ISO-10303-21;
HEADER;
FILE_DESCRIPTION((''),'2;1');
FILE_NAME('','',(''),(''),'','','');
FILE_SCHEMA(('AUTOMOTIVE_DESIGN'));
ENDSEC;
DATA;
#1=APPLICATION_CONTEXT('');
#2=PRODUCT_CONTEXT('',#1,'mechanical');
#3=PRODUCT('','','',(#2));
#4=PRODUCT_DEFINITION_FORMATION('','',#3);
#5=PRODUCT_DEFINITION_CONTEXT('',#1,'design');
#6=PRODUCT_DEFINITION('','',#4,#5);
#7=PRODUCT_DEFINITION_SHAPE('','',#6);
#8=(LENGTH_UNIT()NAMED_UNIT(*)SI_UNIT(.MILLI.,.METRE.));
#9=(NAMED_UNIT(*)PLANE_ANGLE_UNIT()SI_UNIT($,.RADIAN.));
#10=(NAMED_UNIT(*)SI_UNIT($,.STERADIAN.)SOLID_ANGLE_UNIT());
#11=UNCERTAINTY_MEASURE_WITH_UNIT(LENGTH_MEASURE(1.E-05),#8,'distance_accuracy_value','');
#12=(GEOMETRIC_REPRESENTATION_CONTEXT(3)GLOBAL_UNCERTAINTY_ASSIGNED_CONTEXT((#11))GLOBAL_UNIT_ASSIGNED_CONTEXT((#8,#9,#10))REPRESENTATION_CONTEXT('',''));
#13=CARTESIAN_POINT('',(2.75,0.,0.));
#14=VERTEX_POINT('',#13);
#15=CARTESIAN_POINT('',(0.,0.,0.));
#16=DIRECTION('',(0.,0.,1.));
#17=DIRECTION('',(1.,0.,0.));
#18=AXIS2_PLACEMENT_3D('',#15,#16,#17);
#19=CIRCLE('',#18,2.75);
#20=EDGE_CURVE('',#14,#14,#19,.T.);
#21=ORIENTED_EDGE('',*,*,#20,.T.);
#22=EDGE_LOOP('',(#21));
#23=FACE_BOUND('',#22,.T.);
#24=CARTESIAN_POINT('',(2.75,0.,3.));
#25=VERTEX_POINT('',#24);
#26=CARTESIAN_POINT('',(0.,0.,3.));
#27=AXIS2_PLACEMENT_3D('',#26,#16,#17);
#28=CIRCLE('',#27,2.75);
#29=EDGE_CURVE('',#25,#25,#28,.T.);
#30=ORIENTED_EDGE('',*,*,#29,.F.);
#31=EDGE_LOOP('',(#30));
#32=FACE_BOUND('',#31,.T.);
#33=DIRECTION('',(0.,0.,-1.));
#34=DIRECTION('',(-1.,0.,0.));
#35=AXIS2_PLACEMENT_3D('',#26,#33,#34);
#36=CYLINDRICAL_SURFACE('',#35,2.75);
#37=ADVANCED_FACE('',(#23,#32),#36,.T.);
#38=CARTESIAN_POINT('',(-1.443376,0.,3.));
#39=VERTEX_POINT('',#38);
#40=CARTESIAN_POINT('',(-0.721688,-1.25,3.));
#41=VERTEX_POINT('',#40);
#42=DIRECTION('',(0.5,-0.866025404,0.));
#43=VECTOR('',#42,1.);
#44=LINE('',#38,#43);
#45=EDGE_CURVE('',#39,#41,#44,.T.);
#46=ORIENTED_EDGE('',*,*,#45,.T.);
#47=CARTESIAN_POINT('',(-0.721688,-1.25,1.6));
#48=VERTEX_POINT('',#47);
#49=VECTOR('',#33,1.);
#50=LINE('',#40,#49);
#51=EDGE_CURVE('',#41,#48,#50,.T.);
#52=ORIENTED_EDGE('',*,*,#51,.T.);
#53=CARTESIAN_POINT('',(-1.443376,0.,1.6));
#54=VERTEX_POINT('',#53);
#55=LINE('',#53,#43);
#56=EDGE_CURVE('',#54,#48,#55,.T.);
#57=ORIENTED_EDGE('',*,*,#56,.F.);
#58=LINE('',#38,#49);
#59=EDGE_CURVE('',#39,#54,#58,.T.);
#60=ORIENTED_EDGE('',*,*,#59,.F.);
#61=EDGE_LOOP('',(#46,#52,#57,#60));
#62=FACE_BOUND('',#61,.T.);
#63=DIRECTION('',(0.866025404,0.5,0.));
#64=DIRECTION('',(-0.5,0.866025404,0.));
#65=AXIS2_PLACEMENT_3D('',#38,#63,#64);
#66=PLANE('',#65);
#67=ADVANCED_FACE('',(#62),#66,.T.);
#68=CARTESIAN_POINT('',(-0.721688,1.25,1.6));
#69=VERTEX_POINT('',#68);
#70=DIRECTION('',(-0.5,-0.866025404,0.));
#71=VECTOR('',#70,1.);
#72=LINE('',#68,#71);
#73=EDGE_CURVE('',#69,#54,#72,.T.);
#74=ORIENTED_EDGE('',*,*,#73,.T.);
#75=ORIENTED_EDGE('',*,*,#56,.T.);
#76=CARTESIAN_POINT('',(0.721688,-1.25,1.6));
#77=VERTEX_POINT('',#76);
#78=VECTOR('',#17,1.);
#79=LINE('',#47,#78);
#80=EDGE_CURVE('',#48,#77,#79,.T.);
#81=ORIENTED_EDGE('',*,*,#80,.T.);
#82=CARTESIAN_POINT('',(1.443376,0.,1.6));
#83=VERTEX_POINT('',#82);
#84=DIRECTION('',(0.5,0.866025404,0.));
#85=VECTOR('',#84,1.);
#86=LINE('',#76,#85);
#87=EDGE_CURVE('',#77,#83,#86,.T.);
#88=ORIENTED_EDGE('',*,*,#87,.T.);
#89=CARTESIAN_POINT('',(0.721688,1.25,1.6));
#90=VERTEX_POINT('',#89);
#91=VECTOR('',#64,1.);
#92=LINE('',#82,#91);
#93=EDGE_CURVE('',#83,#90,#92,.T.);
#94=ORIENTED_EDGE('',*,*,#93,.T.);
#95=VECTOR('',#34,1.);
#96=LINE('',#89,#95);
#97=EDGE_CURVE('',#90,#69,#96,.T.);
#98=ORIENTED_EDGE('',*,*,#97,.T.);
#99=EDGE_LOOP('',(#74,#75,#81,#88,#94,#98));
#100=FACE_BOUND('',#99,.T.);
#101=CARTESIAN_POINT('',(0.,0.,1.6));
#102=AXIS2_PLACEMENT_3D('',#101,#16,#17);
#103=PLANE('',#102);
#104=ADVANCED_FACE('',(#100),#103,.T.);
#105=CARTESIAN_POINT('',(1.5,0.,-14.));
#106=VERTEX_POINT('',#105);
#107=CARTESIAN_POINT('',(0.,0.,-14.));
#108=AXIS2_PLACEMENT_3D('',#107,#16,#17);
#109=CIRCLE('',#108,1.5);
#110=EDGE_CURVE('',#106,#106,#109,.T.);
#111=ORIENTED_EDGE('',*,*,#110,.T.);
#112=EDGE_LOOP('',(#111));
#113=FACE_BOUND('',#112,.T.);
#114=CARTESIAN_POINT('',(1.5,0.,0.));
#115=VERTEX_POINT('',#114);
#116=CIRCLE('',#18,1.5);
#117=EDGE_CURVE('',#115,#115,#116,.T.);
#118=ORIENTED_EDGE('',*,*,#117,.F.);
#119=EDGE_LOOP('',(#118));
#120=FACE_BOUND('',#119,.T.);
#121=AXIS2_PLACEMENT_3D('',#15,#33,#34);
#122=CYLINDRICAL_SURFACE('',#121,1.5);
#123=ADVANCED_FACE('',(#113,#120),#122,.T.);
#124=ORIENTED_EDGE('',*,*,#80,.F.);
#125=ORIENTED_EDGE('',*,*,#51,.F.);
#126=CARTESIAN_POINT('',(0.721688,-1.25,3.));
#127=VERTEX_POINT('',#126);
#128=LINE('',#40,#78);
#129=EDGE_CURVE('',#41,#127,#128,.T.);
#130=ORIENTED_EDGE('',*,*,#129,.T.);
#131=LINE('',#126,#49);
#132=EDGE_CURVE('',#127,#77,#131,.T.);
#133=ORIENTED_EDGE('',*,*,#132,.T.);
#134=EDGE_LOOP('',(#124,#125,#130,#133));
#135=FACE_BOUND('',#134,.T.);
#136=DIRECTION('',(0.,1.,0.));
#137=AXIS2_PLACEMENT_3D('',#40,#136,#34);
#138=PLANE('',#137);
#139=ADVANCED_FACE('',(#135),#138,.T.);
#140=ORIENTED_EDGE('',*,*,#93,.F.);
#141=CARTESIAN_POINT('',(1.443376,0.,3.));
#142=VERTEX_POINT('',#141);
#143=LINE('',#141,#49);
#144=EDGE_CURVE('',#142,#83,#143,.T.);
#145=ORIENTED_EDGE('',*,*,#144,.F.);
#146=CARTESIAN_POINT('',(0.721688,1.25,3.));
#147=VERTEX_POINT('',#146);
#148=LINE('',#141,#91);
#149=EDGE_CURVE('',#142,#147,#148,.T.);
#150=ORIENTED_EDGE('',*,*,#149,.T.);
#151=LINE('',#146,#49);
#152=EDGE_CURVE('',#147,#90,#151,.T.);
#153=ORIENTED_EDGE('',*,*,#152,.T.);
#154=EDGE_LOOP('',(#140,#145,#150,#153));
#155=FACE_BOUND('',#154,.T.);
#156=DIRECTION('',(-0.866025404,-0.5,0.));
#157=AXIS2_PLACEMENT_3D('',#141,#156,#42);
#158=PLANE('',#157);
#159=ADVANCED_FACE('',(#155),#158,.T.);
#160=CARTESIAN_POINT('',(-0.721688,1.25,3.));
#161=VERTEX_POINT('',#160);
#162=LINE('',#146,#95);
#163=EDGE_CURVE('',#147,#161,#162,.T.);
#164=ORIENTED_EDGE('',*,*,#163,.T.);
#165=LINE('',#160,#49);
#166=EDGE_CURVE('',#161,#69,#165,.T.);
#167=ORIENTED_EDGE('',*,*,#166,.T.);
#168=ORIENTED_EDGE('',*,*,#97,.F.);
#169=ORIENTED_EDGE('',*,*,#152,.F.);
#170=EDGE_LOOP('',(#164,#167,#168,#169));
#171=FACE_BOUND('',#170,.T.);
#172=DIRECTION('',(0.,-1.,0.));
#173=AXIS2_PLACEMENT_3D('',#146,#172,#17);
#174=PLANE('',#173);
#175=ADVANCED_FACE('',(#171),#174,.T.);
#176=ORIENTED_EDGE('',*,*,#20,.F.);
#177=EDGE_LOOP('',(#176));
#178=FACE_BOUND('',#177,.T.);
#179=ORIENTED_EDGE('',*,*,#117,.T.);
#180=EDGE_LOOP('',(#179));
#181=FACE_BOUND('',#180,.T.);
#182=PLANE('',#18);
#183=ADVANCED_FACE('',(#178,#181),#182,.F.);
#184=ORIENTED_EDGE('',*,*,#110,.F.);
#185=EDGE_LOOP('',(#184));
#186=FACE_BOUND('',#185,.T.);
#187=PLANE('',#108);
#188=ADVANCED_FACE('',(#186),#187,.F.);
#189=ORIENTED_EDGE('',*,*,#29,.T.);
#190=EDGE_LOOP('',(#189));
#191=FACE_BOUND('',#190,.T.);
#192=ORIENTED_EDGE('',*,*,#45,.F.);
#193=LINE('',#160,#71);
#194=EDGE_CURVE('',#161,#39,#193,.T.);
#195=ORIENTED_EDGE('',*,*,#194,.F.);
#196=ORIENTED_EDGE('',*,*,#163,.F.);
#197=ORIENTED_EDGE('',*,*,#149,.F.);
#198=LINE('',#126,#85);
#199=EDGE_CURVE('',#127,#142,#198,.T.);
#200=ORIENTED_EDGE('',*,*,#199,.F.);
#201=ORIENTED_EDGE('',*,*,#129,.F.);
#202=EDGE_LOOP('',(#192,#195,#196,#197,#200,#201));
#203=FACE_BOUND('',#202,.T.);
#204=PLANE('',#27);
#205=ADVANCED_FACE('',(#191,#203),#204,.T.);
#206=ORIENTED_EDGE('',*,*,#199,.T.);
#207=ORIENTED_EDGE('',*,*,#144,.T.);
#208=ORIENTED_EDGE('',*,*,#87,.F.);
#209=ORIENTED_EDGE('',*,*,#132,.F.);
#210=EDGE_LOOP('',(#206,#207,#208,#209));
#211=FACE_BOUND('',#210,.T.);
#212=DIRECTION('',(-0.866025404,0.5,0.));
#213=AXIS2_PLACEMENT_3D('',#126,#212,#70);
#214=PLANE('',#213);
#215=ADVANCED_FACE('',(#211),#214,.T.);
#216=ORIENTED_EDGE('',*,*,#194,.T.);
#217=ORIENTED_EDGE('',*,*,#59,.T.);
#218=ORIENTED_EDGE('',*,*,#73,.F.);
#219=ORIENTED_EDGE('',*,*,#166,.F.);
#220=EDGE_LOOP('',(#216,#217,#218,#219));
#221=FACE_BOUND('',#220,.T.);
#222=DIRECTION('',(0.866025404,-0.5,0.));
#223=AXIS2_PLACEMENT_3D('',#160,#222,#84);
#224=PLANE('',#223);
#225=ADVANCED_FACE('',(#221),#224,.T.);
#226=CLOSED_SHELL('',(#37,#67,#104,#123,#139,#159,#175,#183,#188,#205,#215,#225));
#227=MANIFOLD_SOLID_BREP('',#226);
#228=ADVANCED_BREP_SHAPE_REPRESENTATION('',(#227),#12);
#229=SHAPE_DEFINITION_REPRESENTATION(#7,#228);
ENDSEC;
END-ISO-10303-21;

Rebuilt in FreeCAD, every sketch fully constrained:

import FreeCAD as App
import Part
import Sketcher
from FreeCAD import Vector
Q = App.Units.Quantity


def add_polygon(sketch, points):
    """Adds a closed chain of lines whose ends are joined by coincident constraints."""
    first, n = sketch.GeometryCount, len(points)
    for a, b in zip(points, points[1:] + points[:1]):
        sketch.addGeometry(Part.LineSegment(App.Vector(*a, 0), App.Vector(*b, 0)), False)
    for i in range(n):
        sketch.addConstraint(Sketcher.Constraint("Coincident", first + i, 2, first + (i + 1) % n, 1))

doc = App.newDocument("Part")
body = doc.addObject("PartDesign::Body", "Body")

sketch1 = body.newObject("Sketcher::SketchObject", "Sketch")
sketch1.AttachmentSupport = (doc.getObject("XY_Plane"), [""])
sketch1.MapMode = "FlatFace"
sketch1.addGeometry(Part.Circle(Vector(0, 0, 0), Vector(0, 0, 1), 2.8), False)
sketch1.addConstraint(Sketcher.Constraint("Coincident", 0, 3, -1, 1))
sketch1.addConstraint(Sketcher.Constraint("Diameter", 0, 5.5))
pad1 = body.newObject("PartDesign::Pad", "Pad")
pad1.Profile = sketch1
pad1.Length = 3

sketch2 = body.newObject("Sketcher::SketchObject", "Sketch001")
sketch2.AttachmentSupport = (doc.getObject("XY_Plane"), [""])
sketch2.MapMode = "FlatFace"
sketch2.AttachmentOffset = App.Placement(Vector(0, 0, -14), App.Rotation())
sketch2.addGeometry(Part.Circle(Vector(0, 0, 0), Vector(0, 0, 1), 1.5), False)
sketch2.addConstraint(Sketcher.Constraint("Coincident", 0, 3, -1, 1))
sketch2.addConstraint(Sketcher.Constraint("Diameter", 0, 3.0))
pad2 = body.newObject("PartDesign::Pad", "Pad001")
pad2.Profile = sketch2
pad2.Length = 14

sketch3 = body.newObject("Sketcher::SketchObject", "Sketch002")
sketch3.AttachmentSupport = (doc.getObject("XY_Plane"), [""])
sketch3.MapMode = "FlatFace"
sketch3.AttachmentOffset = App.Placement(Vector(0, 0, 1.6), App.Rotation())
add_polygon(sketch3, [(1.4, 0), (0.7, 1.2), (-0.7, 1.2), (-1.4, 0), (-0.7, -1.2), (0.7, -1.2)])
sketch3.addConstraint(Sketcher.Constraint("Horizontal", 1))
sketch3.addConstraint(Sketcher.Constraint("Horizontal", 4))
sketch3.addConstraint(Sketcher.Constraint("Symmetric", 0, 2, 3, 2, -1, 1))
sketch3.addConstraint(Sketcher.Constraint("Symmetric", 2, 2, 5, 2, -1, 1))
sketch3.addConstraint(Sketcher.Constraint("PointOnObject", 2, 2, -1))
sketch3.addConstraint(Sketcher.Constraint("Parallel", 2, 5))
sketch3.addConstraint(Sketcher.Constraint("Vertical", 1, 2, 3, 2))
sketch3.addConstraint(Sketcher.Constraint("Angle", 0, Q("120 deg")))
sketch3.addConstraint(Sketcher.Constraint("DistanceY", 3, 2, 1, 2, 2.5))
sketch3.addConstraint(Sketcher.Constraint("DistanceX", 1, 2, 1, 1, 1.443376))
pocket1 = body.newObject("PartDesign::Pocket", "Pocket")
pocket1.Profile = sketch3
pocket1.Length = 1.4
pocket1.Reversed = True

doc.recompute()
